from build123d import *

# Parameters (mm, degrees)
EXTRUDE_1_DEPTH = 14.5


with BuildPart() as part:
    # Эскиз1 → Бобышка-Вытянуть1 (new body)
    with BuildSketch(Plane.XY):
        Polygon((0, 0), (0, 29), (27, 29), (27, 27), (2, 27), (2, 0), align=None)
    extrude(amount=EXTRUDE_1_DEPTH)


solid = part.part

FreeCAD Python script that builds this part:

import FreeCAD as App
import Part
import Sketcher
from FreeCAD import Vector

doc = App.newDocument("Part")
body = doc.addObject("PartDesign::Body", "Body")

sketch1 = body.newObject("Sketcher::SketchObject", "Sketch")
sketch1.AttachmentSupport = (doc.getObject("XY_Plane"), [""])
sketch1.MapMode = "FlatFace"
sketch1.addGeometry([
    Part.LineSegment(Vector(0, 29, 0), Vector(0, 0, 0)),
    Part.LineSegment(Vector(0, 0, 0), Vector(2, 0, 0)),
    Part.LineSegment(Vector(2, 0, 0), Vector(2, 27, 0)),
    Part.LineSegment(Vector(2, 27, 0), Vector(27, 27, 0)),
    Part.LineSegment(Vector(27, 27, 0), Vector(27, 29, 0)),
    Part.LineSegment(Vector(27, 29, 0), Vector(0, 29, 0)),
], False)
sketch1.addConstraint([
    Sketcher.Constraint("Coincident", 0, 2, 1, 1),
    Sketcher.Constraint("Coincident", 1, 2, 2, 1),
    Sketcher.Constraint("Coincident", 2, 2, 3, 1),
    Sketcher.Constraint("Coincident", 3, 2, 4, 1),
    Sketcher.Constraint("Coincident", 4, 2, 5, 1),
    Sketcher.Constraint("Coincident", 5, 2, 0, 1),
    Sketcher.Constraint("Vertical", 0),
    Sketcher.Constraint("Horizontal", 1),
    Sketcher.Constraint("Vertical", 2),
    Sketcher.Constraint("Horizontal", 3),
    Sketcher.Constraint("Vertical", 4),
    Sketcher.Constraint("Horizontal", 5),
    Sketcher.Constraint("Coincident", 0, 2, -1, 1),
    Sketcher.Constraint("Equal", 5, 2),
    Sketcher.Constraint("Equal", 1, 4),
    Sketcher.Constraint("DistanceX", 1, 1, 1, 2, 2.0),
    Sketcher.Constraint("DistanceX", 3, 1, 3, 2, 25.0),
])
pad1 = body.newObject("PartDesign::Pad", "Pad")
pad1.Profile = sketch1
pad1.Length = 14.5

doc.recompute()
